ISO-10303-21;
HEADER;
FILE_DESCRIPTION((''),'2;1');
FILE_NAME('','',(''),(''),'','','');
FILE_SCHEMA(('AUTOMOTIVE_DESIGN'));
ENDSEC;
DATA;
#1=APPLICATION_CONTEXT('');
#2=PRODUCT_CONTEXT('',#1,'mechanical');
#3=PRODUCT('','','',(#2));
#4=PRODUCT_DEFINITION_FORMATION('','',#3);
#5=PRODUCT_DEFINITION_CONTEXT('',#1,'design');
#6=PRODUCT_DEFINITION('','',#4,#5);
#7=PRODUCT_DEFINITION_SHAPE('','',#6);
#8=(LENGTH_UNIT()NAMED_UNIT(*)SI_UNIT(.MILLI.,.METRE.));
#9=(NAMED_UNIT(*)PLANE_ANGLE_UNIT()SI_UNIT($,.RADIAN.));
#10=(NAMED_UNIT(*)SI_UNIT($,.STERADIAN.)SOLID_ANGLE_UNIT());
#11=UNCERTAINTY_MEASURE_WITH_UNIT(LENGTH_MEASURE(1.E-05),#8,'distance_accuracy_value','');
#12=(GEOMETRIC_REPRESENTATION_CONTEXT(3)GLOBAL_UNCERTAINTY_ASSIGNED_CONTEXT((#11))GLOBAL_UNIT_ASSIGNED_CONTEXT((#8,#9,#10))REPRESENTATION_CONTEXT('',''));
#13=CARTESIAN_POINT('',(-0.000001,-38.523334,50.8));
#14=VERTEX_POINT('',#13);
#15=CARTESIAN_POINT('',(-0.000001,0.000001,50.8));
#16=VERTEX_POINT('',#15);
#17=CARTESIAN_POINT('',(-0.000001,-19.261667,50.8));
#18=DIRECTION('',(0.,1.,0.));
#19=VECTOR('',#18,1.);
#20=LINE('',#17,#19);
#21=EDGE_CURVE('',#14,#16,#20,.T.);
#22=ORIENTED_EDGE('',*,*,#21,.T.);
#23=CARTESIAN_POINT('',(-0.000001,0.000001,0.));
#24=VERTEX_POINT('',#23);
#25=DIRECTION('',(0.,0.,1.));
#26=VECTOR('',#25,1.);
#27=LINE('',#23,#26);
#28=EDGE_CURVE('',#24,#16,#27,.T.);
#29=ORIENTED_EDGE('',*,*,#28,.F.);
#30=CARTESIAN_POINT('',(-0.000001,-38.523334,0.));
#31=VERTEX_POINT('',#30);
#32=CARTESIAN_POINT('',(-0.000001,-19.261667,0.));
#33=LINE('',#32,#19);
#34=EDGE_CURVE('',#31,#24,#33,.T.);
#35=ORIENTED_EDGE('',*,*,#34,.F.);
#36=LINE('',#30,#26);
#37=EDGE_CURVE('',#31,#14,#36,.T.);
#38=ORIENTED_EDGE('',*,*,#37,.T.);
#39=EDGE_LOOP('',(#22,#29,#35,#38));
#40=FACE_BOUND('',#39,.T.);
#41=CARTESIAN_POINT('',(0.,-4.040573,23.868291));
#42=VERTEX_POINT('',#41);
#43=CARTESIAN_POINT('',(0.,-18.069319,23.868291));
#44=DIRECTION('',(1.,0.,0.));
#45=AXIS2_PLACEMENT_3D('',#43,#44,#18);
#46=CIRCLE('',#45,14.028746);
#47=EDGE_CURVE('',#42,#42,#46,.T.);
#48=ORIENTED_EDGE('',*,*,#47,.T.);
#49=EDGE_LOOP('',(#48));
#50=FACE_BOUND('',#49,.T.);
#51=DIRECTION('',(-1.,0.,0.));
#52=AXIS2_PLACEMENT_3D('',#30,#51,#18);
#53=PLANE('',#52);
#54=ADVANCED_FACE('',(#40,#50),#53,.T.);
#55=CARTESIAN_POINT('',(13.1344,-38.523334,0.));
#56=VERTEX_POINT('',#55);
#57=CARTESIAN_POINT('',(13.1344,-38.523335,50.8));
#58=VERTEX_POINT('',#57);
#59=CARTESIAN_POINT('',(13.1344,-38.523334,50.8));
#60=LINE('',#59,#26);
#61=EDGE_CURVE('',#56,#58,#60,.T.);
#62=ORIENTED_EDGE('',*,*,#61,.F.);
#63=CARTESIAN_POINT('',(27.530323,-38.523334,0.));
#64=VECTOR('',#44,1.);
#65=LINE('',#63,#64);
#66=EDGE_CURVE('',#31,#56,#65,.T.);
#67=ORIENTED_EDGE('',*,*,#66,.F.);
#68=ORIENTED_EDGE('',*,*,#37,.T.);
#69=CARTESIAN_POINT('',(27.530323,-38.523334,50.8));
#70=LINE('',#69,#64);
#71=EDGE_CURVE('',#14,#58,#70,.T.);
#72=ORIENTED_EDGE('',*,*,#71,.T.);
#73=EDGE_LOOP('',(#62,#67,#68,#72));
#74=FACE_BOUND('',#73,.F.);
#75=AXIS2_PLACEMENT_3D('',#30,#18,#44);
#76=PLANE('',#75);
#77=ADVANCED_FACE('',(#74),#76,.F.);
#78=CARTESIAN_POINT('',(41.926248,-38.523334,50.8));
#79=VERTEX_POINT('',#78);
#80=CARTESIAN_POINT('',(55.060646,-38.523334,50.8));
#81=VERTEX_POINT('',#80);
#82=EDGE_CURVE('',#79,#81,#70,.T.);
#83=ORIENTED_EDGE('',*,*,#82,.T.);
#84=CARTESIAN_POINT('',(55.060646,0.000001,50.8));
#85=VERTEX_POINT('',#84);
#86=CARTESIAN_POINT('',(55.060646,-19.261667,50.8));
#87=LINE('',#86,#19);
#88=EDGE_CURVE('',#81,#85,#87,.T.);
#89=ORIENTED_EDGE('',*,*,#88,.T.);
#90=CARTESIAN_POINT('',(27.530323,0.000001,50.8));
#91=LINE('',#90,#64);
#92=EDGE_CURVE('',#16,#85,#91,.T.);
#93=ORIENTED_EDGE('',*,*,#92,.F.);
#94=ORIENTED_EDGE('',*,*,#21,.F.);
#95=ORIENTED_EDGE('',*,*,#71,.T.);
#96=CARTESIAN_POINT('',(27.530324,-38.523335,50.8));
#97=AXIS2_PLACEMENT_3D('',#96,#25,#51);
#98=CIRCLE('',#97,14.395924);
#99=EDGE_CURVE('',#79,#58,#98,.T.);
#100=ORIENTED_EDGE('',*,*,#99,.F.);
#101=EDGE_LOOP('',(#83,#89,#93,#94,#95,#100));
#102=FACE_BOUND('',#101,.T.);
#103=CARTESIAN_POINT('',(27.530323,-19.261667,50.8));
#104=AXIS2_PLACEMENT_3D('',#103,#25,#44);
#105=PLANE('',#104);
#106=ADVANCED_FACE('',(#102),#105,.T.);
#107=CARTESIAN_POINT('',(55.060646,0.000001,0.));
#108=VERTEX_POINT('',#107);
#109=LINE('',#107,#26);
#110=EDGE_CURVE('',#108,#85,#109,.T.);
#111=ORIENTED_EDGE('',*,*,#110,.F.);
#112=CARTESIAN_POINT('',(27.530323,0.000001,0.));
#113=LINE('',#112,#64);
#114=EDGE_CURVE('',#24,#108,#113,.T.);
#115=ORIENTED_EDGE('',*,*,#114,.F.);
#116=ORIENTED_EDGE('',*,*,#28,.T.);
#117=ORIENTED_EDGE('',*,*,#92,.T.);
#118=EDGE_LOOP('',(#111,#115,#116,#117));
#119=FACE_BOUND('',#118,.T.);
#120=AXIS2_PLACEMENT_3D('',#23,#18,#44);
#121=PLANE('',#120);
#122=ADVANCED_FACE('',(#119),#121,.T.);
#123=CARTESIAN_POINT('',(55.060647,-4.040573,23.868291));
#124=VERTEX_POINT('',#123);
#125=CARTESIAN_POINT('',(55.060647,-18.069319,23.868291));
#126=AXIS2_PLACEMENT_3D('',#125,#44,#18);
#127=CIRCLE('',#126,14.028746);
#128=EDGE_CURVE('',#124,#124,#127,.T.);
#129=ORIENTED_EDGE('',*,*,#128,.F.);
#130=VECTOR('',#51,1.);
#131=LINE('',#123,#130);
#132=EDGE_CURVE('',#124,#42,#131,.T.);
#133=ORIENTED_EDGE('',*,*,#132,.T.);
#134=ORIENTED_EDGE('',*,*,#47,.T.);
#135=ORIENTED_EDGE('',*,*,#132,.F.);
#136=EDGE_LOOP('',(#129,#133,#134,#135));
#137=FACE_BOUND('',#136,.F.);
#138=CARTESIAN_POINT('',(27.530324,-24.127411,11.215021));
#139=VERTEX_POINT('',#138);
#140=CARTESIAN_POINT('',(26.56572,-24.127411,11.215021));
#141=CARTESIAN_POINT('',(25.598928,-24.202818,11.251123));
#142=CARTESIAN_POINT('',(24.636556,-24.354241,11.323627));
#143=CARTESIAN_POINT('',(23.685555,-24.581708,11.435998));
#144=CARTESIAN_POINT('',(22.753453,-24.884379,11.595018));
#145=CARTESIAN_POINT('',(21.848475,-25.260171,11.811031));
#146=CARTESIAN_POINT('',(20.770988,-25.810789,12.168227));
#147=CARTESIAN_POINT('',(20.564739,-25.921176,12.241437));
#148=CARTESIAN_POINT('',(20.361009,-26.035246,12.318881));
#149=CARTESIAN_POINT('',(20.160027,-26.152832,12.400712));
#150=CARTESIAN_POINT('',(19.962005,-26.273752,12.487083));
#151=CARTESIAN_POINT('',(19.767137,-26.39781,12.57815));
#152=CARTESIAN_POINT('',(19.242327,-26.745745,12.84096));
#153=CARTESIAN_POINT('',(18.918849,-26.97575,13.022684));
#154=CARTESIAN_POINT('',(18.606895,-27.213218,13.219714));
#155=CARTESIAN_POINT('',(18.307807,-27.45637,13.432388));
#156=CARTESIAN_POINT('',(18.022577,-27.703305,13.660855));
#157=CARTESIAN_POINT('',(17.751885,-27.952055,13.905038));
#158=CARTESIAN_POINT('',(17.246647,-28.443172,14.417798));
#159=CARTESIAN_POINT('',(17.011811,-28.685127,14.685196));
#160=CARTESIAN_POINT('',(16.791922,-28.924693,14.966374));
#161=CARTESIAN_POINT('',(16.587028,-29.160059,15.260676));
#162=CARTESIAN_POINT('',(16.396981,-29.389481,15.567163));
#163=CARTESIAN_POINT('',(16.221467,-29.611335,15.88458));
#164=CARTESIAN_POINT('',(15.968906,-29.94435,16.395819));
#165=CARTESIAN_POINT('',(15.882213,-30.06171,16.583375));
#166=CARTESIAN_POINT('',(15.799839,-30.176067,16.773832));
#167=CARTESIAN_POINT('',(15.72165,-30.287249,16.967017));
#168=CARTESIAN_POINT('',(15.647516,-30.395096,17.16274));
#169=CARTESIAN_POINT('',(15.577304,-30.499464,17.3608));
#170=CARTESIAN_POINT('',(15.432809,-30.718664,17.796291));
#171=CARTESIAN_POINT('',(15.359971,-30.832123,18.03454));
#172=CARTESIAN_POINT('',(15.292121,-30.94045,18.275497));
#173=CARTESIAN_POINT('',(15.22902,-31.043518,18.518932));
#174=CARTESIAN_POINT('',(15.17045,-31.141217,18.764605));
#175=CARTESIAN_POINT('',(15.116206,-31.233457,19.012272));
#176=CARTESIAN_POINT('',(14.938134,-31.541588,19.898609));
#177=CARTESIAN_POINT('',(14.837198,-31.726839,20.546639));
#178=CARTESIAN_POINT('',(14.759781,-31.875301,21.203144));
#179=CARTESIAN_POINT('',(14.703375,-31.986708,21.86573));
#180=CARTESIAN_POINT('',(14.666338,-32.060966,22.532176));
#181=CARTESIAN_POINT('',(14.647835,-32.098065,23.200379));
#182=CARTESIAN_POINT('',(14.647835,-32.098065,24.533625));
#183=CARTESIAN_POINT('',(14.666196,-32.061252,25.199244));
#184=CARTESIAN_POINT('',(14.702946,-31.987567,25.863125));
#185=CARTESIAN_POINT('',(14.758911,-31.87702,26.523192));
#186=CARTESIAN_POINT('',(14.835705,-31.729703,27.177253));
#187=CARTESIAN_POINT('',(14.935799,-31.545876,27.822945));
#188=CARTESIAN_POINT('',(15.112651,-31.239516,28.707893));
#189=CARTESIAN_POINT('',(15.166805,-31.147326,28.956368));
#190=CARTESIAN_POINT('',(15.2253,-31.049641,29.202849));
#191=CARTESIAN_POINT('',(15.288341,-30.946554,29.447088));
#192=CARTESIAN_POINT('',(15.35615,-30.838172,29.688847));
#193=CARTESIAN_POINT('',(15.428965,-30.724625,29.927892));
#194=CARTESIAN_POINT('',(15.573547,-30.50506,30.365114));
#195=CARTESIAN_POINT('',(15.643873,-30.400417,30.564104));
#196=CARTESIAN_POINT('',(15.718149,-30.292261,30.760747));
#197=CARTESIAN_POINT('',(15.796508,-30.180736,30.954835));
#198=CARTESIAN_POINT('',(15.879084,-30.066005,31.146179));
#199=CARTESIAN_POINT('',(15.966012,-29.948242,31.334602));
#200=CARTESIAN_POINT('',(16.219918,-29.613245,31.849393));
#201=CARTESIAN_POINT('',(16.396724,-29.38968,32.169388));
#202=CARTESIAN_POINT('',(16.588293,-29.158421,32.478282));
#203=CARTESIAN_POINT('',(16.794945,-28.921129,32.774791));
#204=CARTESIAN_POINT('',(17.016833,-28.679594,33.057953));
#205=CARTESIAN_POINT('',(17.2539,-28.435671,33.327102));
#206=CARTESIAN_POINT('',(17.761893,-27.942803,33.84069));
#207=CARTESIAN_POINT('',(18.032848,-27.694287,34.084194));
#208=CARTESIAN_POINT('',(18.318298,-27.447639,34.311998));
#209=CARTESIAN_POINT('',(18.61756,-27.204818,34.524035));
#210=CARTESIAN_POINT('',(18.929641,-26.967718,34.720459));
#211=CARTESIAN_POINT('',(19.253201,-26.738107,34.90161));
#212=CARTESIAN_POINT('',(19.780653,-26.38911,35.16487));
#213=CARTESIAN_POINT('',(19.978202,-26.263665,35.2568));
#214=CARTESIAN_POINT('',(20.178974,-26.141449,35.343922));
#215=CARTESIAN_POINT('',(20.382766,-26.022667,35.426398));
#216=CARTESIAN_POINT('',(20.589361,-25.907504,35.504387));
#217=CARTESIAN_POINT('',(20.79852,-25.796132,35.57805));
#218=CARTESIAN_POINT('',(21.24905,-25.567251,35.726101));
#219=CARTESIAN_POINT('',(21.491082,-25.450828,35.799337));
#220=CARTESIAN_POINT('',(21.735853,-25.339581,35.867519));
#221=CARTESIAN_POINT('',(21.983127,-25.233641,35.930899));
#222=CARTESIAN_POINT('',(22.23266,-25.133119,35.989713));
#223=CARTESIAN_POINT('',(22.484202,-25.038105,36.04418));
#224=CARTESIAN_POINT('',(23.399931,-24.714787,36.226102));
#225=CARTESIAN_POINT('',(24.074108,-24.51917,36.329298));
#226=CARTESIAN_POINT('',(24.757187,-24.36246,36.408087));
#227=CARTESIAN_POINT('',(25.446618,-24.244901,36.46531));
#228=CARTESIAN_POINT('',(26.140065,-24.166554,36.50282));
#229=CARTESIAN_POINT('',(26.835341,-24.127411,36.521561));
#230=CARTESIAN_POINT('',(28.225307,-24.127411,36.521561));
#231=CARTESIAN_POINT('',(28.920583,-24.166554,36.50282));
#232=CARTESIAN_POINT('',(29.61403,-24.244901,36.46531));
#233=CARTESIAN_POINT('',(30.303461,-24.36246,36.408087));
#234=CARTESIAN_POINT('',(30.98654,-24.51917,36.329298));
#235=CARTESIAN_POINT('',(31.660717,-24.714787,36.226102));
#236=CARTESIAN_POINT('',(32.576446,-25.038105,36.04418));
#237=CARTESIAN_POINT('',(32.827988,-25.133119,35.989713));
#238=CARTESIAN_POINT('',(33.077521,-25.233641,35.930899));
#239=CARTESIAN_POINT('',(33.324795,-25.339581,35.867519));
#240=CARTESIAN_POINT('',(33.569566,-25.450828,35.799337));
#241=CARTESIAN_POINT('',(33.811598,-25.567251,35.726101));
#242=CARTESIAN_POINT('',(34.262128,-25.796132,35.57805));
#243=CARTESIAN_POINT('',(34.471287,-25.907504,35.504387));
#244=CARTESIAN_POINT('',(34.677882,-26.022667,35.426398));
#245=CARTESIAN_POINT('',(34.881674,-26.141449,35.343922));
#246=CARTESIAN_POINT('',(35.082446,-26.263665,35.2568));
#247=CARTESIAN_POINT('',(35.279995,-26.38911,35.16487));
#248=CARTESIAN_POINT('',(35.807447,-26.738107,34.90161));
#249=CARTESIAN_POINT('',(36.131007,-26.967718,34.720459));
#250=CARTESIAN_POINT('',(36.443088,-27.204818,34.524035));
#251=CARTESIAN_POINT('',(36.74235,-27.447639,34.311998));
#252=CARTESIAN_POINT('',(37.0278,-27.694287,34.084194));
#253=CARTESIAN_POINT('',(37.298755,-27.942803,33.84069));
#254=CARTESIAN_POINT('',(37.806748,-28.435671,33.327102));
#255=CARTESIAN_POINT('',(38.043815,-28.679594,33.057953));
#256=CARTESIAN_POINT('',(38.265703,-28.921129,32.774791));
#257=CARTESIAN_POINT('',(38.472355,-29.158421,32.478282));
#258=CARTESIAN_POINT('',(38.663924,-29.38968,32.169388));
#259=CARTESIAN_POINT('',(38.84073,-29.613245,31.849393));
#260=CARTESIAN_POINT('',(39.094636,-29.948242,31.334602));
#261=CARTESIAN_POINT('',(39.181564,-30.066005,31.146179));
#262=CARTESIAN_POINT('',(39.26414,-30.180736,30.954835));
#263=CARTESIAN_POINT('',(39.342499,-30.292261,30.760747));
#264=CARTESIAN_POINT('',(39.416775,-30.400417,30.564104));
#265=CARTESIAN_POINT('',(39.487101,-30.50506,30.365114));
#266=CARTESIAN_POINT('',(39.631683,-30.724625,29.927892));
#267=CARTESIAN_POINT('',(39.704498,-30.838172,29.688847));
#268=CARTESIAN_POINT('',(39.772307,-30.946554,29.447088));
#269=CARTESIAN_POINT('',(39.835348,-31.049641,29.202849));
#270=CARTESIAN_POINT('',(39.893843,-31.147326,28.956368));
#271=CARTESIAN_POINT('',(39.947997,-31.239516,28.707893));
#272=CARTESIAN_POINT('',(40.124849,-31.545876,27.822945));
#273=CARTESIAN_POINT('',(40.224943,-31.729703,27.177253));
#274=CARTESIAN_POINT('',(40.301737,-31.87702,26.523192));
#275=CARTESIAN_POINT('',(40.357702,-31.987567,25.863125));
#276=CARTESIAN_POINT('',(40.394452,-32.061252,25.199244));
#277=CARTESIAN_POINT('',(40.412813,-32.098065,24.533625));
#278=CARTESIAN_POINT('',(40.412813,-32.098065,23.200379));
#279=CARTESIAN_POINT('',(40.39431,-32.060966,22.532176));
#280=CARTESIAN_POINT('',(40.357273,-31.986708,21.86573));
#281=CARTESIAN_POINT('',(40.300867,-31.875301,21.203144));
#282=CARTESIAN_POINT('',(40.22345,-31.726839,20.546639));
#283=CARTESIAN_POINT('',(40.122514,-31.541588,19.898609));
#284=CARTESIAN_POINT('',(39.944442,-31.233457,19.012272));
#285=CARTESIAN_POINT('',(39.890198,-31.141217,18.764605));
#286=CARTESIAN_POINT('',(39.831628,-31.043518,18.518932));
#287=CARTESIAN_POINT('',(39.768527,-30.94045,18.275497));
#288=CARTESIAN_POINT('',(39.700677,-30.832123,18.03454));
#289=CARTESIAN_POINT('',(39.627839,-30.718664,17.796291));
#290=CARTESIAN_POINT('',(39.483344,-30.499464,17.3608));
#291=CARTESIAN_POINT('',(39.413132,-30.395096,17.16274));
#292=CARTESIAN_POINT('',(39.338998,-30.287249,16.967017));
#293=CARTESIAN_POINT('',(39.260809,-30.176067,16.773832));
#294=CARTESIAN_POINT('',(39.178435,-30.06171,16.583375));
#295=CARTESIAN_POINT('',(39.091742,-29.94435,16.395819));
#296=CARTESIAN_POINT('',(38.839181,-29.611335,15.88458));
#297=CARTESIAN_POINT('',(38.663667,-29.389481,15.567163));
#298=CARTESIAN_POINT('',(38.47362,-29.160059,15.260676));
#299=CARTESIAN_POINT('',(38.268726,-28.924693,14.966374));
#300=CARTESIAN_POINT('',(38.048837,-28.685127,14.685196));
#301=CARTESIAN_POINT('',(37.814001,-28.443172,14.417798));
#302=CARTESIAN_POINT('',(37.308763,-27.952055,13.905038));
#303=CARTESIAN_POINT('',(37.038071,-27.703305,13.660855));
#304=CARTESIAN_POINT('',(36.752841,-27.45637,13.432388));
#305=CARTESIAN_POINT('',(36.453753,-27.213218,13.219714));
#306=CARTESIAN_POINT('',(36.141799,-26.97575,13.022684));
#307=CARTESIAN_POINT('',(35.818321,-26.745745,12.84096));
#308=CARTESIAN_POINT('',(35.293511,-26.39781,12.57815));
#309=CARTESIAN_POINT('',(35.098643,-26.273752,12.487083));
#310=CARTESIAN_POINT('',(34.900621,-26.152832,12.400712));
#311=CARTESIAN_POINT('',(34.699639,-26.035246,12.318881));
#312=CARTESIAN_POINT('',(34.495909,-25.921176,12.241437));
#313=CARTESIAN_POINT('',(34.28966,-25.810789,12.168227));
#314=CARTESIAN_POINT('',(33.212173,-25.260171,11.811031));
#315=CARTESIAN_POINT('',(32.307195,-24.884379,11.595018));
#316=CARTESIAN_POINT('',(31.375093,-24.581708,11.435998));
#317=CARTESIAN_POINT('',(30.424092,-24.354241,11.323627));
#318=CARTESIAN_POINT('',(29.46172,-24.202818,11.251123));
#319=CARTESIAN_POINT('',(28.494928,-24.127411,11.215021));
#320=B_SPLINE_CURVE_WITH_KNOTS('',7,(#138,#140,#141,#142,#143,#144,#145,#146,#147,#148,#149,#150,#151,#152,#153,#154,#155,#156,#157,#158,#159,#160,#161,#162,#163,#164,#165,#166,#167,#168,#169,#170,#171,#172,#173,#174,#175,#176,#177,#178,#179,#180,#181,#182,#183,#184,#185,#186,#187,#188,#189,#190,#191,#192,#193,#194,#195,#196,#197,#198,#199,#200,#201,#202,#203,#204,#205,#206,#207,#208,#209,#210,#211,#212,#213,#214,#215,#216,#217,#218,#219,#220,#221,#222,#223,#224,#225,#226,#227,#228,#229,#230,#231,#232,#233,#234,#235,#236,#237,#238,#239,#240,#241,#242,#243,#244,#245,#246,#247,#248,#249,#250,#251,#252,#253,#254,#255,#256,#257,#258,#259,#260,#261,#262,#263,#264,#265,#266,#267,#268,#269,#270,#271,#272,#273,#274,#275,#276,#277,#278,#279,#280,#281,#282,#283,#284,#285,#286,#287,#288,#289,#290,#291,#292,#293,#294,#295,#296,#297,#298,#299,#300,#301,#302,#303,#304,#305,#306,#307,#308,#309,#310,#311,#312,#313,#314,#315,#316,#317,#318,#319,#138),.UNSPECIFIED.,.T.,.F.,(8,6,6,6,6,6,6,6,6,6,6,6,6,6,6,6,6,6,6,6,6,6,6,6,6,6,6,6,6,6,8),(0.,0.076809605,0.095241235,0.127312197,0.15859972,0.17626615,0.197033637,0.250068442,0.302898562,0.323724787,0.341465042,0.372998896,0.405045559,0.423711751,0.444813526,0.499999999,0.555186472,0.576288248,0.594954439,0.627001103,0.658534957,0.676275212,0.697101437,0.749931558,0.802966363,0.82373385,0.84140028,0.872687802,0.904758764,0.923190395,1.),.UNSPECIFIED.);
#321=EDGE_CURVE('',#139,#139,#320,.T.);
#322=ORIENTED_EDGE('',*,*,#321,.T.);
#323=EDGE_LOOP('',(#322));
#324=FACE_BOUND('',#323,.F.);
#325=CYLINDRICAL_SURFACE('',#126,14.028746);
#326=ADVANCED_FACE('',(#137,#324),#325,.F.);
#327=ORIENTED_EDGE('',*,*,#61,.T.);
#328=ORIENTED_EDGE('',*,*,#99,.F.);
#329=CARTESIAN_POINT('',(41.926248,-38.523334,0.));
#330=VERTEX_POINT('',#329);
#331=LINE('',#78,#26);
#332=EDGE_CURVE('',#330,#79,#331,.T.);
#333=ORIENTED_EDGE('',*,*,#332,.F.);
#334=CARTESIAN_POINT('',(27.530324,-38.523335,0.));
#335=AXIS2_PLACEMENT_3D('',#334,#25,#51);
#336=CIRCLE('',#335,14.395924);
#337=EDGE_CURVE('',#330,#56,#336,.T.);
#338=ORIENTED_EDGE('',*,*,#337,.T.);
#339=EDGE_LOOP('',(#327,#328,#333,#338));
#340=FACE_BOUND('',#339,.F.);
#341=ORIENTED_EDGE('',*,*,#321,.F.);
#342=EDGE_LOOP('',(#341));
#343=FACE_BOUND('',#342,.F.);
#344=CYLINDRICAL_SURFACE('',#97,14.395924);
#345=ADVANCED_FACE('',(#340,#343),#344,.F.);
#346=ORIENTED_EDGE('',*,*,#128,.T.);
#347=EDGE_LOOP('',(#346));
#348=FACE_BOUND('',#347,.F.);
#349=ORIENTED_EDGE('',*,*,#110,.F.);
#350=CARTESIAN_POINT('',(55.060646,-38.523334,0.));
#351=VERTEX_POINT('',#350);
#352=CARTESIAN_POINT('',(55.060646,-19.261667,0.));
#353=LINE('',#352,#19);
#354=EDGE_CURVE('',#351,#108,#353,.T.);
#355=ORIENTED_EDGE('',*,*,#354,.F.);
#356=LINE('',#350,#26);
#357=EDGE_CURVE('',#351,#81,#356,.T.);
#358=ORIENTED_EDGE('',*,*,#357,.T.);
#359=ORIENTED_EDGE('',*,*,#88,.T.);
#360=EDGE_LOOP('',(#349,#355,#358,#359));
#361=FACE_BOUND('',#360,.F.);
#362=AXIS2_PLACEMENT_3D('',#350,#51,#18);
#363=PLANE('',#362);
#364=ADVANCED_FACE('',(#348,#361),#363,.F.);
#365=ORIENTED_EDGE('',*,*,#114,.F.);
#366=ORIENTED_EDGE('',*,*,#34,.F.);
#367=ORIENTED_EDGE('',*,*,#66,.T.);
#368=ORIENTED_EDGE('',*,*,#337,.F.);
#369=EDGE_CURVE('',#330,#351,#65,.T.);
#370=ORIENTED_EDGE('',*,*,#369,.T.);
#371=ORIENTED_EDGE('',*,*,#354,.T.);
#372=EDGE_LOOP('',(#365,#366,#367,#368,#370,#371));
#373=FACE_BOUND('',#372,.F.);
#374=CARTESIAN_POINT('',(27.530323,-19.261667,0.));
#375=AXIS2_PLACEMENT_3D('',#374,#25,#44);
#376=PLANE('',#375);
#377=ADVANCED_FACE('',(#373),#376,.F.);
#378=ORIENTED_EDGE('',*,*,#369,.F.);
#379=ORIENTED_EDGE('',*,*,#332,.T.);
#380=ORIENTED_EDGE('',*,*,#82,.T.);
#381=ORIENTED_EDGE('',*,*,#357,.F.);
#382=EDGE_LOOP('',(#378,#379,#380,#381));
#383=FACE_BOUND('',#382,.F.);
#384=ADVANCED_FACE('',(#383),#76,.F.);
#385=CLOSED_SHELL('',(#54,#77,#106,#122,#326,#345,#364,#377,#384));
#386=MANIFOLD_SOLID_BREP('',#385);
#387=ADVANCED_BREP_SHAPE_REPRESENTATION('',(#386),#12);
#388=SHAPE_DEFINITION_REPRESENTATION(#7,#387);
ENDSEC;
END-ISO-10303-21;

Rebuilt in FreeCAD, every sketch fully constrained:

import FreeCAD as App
import Part
import Sketcher
from FreeCAD import Vector


def add_polygon(sketch, points):
    """Adds a closed chain of lines whose ends are joined by coincident constraints."""
    first, n = sketch.GeometryCount, len(points)
    for a, b in zip(points, points[1:] + points[:1]):
        sketch.addGeometry(Part.LineSegment(App.Vector(*a, 0), App.Vector(*b, 0)), False)
    for i in range(n):
        sketch.addConstraint(Sketcher.Constraint("Coincident", first + i, 2, first + (i + 1) % n, 1))

doc = App.newDocument("Part")
params = doc.addObject("Spreadsheet::Sheet", "Params")
for row, (alias, value) in enumerate([
    ("pad1_length", "2 in"),
    ("pocket1_length", "3 in"),
    ("pocket2_length", "3 in"),
], start=1):
    params.set(f"A{row}", alias)
    params.set(f"B{row}", "=" + value)
    params.setAlias(f"B{row}", alias)

body = doc.addObject("PartDesign::Body", "Body")

sketch1 = body.newObject("Sketcher::SketchObject", "Sketch")
sketch1.AttachmentSupport = (doc.getObject("XY_Plane"), [""])
sketch1.MapMode = "FlatFace"
add_polygon(sketch1, [(0, 0), (0, -39), (55, -39), (55, 0)])
sketch1.addConstraint([
    Sketcher.Constraint("Vertical", 0),
    Sketcher.Constraint("Horizontal", 1),
    Sketcher.Constraint("Vertical", 2),
    Sketcher.Constraint("Horizontal", 3),
    Sketcher.Constraint("Coincident", 3, 2, -1, 1),
    Sketcher.Constraint("DistanceX", 1, 1, 1, 2, 55.060647),
    Sketcher.Constraint("DistanceY", 0, 2, 0, 1, 38.523335),
])
pad1 = body.newObject("PartDesign::Pad", "Pad")
pad1.Profile = sketch1
pad1.setExpression("Length", "Params.pad1_length")

sketch2 = body.newObject("Sketcher::SketchObject", "Sketch001")
sketch2.AttachmentSupport = (doc.getObject("XY_Plane"), [""])
sketch2.MapMode = "FlatFace"
sketch2.AttachmentOffset = App.Placement(Vector(0, 0, 2 * 25.4), App.Rotation())
sketch2.addGeometry(Part.Circle(Vector(28, -39, 0), Vector(0, 0, 1), 14), False)
sketch2.addConstraint([
    Sketcher.Constraint("Diameter", 0, 28.791848),
    Sketcher.Constraint("DistanceX", -1, 1, 0, 3, 27.530324),
    Sketcher.Constraint("DistanceY", 0, 3, -1, 1, 38.523335),
])
pocket1 = body.newObject("PartDesign::Pocket", "Pocket")
pocket1.Profile = sketch2
pocket1.setExpression("Length", "Params.pocket1_length")

sketch3 = body.newObject("Sketcher::SketchObject", "Sketch002")
sketch3.AttachmentSupport = (doc.getObject("YZ_Plane"), [""])
sketch3.MapMode = "FlatFace"
sketch3.AttachmentOffset = App.Placement(Vector(0, 0, 55.060647), App.Rotation())
sketch3.addGeometry(Part.Circle(Vector(-18, 24, 0), Vector(0, 0, 1), 14), False)
sketch3.addConstraint([
    Sketcher.Constraint("Diameter", 0, 28.057492),
    Sketcher.Constraint("DistanceX", 0, 3, -1, 1, 18.069319),
    Sketcher.Constraint("DistanceY", -1, 1, 0, 3, 23.868291),
])
pocket2 = body.newObject("PartDesign::Pocket", "Pocket001")
pocket2.Profile = sketch3
pocket2.setExpression("Length", "Params.pocket2_length")

doc.recompute()
